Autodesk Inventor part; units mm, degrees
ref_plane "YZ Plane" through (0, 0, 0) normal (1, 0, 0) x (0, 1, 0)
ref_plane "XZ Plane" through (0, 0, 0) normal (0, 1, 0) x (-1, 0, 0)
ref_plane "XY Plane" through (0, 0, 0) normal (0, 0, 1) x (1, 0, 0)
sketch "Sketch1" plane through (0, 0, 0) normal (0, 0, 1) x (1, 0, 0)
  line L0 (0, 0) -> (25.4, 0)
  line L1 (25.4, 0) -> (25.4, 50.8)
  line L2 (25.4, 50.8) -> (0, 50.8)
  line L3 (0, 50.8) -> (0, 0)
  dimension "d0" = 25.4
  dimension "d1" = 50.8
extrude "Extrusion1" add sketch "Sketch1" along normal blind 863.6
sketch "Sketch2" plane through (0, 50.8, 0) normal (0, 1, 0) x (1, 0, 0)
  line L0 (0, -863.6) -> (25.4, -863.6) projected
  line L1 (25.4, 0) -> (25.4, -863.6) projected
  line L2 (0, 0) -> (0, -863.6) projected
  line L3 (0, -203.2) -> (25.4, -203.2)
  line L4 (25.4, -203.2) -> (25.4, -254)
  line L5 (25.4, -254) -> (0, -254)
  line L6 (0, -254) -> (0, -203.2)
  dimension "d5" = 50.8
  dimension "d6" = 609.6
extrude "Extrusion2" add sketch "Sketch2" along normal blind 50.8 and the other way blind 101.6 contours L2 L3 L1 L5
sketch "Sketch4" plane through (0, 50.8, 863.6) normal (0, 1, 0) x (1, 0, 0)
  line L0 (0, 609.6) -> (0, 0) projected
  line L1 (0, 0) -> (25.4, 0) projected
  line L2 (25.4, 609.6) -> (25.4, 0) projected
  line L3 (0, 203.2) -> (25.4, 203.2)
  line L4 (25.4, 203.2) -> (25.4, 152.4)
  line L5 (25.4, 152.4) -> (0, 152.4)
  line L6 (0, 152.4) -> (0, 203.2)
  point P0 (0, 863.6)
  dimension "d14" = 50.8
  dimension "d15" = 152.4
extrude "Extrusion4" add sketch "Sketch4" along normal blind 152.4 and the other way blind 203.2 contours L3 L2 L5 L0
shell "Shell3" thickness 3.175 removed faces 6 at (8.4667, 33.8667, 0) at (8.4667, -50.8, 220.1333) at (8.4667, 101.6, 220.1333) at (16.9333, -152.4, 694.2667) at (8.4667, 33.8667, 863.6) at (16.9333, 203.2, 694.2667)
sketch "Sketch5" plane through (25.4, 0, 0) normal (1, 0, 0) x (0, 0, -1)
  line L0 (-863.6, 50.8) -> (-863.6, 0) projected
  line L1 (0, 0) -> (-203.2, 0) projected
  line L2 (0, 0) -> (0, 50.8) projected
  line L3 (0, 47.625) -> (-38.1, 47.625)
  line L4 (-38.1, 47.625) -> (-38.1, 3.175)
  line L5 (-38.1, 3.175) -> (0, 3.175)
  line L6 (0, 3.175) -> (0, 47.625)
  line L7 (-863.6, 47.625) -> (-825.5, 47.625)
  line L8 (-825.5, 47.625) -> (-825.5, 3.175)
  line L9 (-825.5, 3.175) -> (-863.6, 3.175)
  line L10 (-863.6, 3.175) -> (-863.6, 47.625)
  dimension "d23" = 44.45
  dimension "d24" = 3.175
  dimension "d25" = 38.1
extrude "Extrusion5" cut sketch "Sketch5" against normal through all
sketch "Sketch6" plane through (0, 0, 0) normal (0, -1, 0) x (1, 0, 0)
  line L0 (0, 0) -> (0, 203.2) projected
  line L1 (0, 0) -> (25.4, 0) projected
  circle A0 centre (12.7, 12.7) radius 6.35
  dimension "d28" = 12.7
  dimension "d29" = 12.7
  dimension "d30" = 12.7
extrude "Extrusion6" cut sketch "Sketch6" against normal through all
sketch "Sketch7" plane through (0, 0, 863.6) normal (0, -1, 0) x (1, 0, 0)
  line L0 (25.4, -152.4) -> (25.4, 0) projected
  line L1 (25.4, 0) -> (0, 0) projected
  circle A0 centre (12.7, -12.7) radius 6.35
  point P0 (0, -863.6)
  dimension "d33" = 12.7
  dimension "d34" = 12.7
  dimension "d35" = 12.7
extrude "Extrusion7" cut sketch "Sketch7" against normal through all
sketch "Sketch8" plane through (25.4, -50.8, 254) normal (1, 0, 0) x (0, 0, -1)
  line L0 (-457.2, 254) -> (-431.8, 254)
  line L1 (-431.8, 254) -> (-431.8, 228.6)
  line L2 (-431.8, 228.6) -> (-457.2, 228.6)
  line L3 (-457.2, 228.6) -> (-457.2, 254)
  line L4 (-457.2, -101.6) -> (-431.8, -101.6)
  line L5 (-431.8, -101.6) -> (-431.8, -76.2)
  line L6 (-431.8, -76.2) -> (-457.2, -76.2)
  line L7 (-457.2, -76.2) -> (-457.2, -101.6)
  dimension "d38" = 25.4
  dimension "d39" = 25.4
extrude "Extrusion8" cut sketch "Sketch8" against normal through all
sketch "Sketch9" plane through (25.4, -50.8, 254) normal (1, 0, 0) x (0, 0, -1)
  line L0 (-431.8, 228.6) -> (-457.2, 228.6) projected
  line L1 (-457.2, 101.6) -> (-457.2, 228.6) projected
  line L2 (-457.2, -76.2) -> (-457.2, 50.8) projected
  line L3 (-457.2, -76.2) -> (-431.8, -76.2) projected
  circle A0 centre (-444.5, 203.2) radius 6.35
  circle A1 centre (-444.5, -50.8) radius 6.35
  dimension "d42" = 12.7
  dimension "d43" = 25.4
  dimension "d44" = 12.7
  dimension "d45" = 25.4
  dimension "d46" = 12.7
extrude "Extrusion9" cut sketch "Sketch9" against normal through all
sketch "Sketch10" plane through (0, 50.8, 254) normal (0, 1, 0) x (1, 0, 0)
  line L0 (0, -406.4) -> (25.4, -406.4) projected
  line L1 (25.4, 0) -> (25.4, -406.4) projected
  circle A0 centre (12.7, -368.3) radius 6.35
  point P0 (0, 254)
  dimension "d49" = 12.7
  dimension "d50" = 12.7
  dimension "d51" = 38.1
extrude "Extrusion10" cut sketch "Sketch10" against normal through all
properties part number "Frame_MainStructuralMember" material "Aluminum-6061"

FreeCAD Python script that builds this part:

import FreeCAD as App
import Part
import Sketcher
from FreeCAD import Vector
Q = App.Units.Quantity


def faces_at(feature, points):
    """Names of the faces that lie closest to the given points."""
    faces = feature.Shape.Faces
    near = lambda p: min(range(len(faces)), key=lambda i: faces[i].distToShape(Part.Vertex(*p))[0])
    return sorted({f"Face{near(p) + 1}" for p in points})

doc = App.newDocument("Part")
body = doc.addObject("PartDesign::Body", "Body")

# Sketch on XY plane
sketch1 = body.newObject("Sketcher::SketchObject", "Sketch")
sketch1.AttachmentSupport = (doc.getObject("XY_Plane"), [""])
sketch1.MapMode = "FlatFace"
sketch1.addGeometry(Part.LineSegment(Vector(0, 50.8, 0), Vector(0, 0, 0)), False)
sketch1.addGeometry(Part.LineSegment(Vector(0, 0, 0), Vector(25.4, 0, 0)), False)
sketch1.addGeometry(Part.LineSegment(Vector(25.4, 0, 0), Vector(25.4, 50.8, 0)), False)
sketch1.addGeometry(Part.LineSegment(Vector(25.4, 50.8, 0), Vector(0, 50.8, 0)), False)
sketch1.addConstraint(Sketcher.Constraint("Coincident", 0, 2, 1, 1))
sketch1.addConstraint(Sketcher.Constraint("Coincident", 1, 2, 2, 1))
sketch1.addConstraint(Sketcher.Constraint("Coincident", 2, 2, 3, 1))
sketch1.addConstraint(Sketcher.Constraint("Coincident", 3, 2, 0, 1))
sketch1.addConstraint(Sketcher.Constraint("Vertical", 0))
sketch1.addConstraint(Sketcher.Constraint("Horizontal", 1))
sketch1.addConstraint(Sketcher.Constraint("Vertical", 2))
sketch1.addConstraint(Sketcher.Constraint("Horizontal", 3))
sketch1.addConstraint(Sketcher.Constraint("Coincident", 0, 2, -1, 1))
sketch1.addConstraint(Sketcher.Constraint("DistanceX", 1, 1, 1, 2, Q("1 in")))
sketch1.addConstraint(Sketcher.Constraint("DistanceY", 0, 2, 0, 1, Q("2 in")))
pad1 = body.newObject("PartDesign::Pad", "Pad")
pad1.Profile = sketch1
pad1.Length = Q("34 in")

# Sketch on XZ plane
sketch2 = body.newObject("Sketcher::SketchObject", "Sketch001")
sketch2.AttachmentSupport = (doc.getObject("XZ_Plane"), [""])
sketch2.MapMode = "FlatFace"
sketch2.AttachmentOffset = App.Placement(Vector(0, 0, -2 * 25.4), App.Rotation())
sketch2.addGeometry(Part.LineSegment(Vector(0, 203.2, 0), Vector(0, 254, 0)), False)
sketch2.addGeometry(Part.LineSegment(Vector(0, 254, 0), Vector(25.4, 254, 0)), False)
sketch2.addGeometry(Part.LineSegment(Vector(25.4, 254, 0), Vector(25.4, 203.2, 0)), False)
sketch2.addGeometry(Part.LineSegment(Vector(25.4, 203.2, 0), Vector(0, 203.2, 0)), False)
sketch2.addConstraint(Sketcher.Constraint("Coincident", 0, 2, 1, 1))
sketch2.addConstraint(Sketcher.Constraint("Coincident", 1, 2, 2, 1))
sketch2.addConstraint(Sketcher.Constraint("Coincident", 2, 2, 3, 1))
sketch2.addConstraint(Sketcher.Constraint("Coincident", 3, 2, 0, 1))
sketch2.addConstraint(Sketcher.Constraint("Vertical", 0))
sketch2.addConstraint(Sketcher.Constraint("Horizontal", 1))
sketch2.addConstraint(Sketcher.Constraint("Vertical", 2))
sketch2.addConstraint(Sketcher.Constraint("Horizontal", 3))
sketch2.addConstraint(Sketcher.Constraint("PointOnObject", 0, 2, -2))
sketch2.addConstraint(Sketcher.Constraint("DistanceY", 0, 1, 0, 2, Q("2 in")))
sketch2.addConstraint(Sketcher.Constraint("DistanceX", 1, 1, 1, 2, Q("1 in")))
sketch2.addConstraint(Sketcher.Constraint("DistanceY", -1, 1, 0, 2, Q("10 in")))
pad2 = body.newObject("PartDesign::Pad", "Pad001")
pad2.Profile = sketch2
pad2.Type = "TwoLengths"
pad2.Length = Q("2 in")
pad2.Length2 = Q("4 in")
pad2.Reversed = True

# Sketch on XZ plane
sketch3 = body.newObject("Sketcher::SketchObject", "Sketch002")
sketch3.AttachmentSupport = (doc.getObject("XZ_Plane"), [""])
sketch3.MapMode = "FlatFace"
sketch3.AttachmentOffset = App.Placement(Vector(0, 0, -2 * 25.4), App.Rotation())
sketch3.addGeometry(Part.LineSegment(Vector(25.4, 660.4, 0), Vector(0, 660.4, 0)), False)
sketch3.addGeometry(Part.LineSegment(Vector(0, 660.4, 0), Vector(0, 711.2, 0)), False)
sketch3.addGeometry(Part.LineSegment(Vector(0, 711.2, 0), Vector(25.4, 711.2, 0)), False)
sketch3.addGeometry(Part.LineSegment(Vector(25.4, 711.2, 0), Vector(25.4, 660.4, 0)), False)
sketch3.addConstraint(Sketcher.Constraint("Coincident", 0, 2, 1, 1))
sketch3.addConstraint(Sketcher.Constraint("Coincident", 1, 2, 2, 1))
sketch3.addConstraint(Sketcher.Constraint("Coincident", 2, 2, 3, 1))
sketch3.addConstraint(Sketcher.Constraint("Coincident", 3, 2, 0, 1))
sketch3.addConstraint(Sketcher.Constraint("Horizontal", 0))
sketch3.addConstraint(Sketcher.Constraint("Vertical", 1))
sketch3.addConstraint(Sketcher.Constraint("Horizontal", 2))
sketch3.addConstraint(Sketcher.Constraint("Vertical", 3))
sketch3.addConstraint(Sketcher.Constraint("PointOnObject", 0, 2, -2))
sketch3.addConstraint(Sketcher.Constraint("DistanceY", 1, 1, 1, 2, Q("2 in")))
sketch3.addConstraint(Sketcher.Constraint("DistanceX", 0, 2, 0, 1, Q("1 in")))
sketch3.addConstraint(Sketcher.Constraint("DistanceY", -1, 1, 0, 2, Q("26 in")))
pad3 = body.newObject("PartDesign::Pad", "Pad002")
pad3.Profile = sketch3
pad3.Type = "TwoLengths"
pad3.Length = Q("6 in")
pad3.Length2 = Q("8 in")
pad3.Reversed = True
doc.recompute()

thickness = body.newObject("PartDesign::Thickness", "Thickness")
thickness.Base = (pad3, faces_at(pad3, [
    (8.467, 33.867, 0),
    (8.467, -50.8, 220.133),
    (8.467, 101.6, 220.133),
    (16.933, -152.4, 694.267),
    (8.467, 33.867, 863.6),
    (16.933, 203.2, 694.267),
]))
thickness.Value = Q("0.125 in")
thickness.Reversed = True
thickness.Join = "Intersection"

# Sketch on YZ plane
sketch4 = body.newObject("Sketcher::SketchObject", "Sketch003")
sketch4.AttachmentSupport = (doc.getObject("YZ_Plane"), [""])
sketch4.MapMode = "FlatFace"
sketch4.AttachmentOffset = App.Placement(Vector(0, 0, 1 * 25.4), App.Rotation())
sketch4.addGeometry(Part.LineSegment(Vector(47.625, 825.5, 0), Vector(47.625, 863.6, 0)), False)
sketch4.addGeometry(Part.LineSegment(Vector(47.625, 863.6, 0), Vector(3.175, 863.6, 0)), False)
sketch4.addGeometry(Part.LineSegment(Vector(3.175, 863.6, 0), Vector(3.175, 825.5, 0)), False)
sketch4.addGeometry(Part.LineSegment(Vector(3.175, 825.5, 0), Vector(47.625, 825.5, 0)), False)
sketch4.addGeometry(Part.LineSegment(Vector(3.175, 38.1, 0), Vector(3.175, 0, 0)), False)
sketch4.addGeometry(Part.LineSegment(Vector(3.175, 0, 0), Vector(47.625, 0, 0)), False)
sketch4.addGeometry(Part.LineSegment(Vector(47.625, 0, 0), Vector(47.625, 38.1, 0)), False)
sketch4.addGeometry(Part.LineSegment(Vector(47.625, 38.1, 0), Vector(3.175, 38.1, 0)), False)
sketch4.addConstraint(Sketcher.Constraint("Coincident", 0, 2, 1, 1))
sketch4.addConstraint(Sketcher.Constraint("Coincident", 1, 2, 2, 1))
sketch4.addConstraint(Sketcher.Constraint("Coincident", 2, 2, 3, 1))
sketch4.addConstraint(Sketcher.Constraint("Coincident", 3, 2, 0, 1))
sketch4.addConstraint(Sketcher.Constraint("Coincident", 4, 2, 5, 1))
sketch4.addConstraint(Sketcher.Constraint("Coincident", 5, 2, 6, 1))
sketch4.addConstraint(Sketcher.Constraint("Coincident", 6, 2, 7, 1))
sketch4.addConstraint(Sketcher.Constraint("Coincident", 7, 2, 4, 1))
sketch4.addConstraint(Sketcher.Constraint("Vertical", 0))
sketch4.addConstraint(Sketcher.Constraint("Horizontal", 1))
sketch4.addConstraint(Sketcher.Constraint("Vertical", 2))
sketch4.addConstraint(Sketcher.Constraint("Horizontal", 3))
sketch4.addConstraint(Sketcher.Constraint("Vertical", 4))
sketch4.addConstraint(Sketcher.Constraint("Horizontal", 5))
sketch4.addConstraint(Sketcher.Constraint("Vertical", 6))
sketch4.addConstraint(Sketcher.Constraint("Horizontal", 7))
sketch4.addConstraint(Sketcher.Constraint("PointOnObject", 4, 2, -1))
sketch4.addConstraint(Sketcher.Constraint("Vertical", 2, 2, 4, 2))
sketch4.addConstraint(Sketcher.Constraint("Vertical", 3, 2, 5, 2))
sketch4.addConstraint(Sketcher.Constraint("Equal", 2, 4))
sketch4.addConstraint(Sketcher.Constraint("DistanceY", 0, 1, 0, 2, Q("1.5 in")))
sketch4.addConstraint(Sketcher.Constraint("DistanceX", 1, 2, 1, 1, Q("1.75 in")))
sketch4.addConstraint(Sketcher.Constraint("DistanceX", -1, 1, 1, 2, Q("0.125 in")))
sketch4.addConstraint(Sketcher.Constraint("DistanceY", -1, 1, 0, 2, Q("34 in")))
pocket1 = body.newObject("PartDesign::Pocket", "Pocket")
pocket1.Profile = sketch4
pocket1.Type = "ThroughAll"

# Sketch on XZ plane
sketch5 = body.newObject("Sketcher::SketchObject", "Sketch004")
sketch5.AttachmentSupport = (doc.getObject("XZ_Plane"), [""])
sketch5.MapMode = "FlatFace"
sketch5.addGeometry(Part.Circle(Vector(12.7, 12.7, 0), Vector(0, 0, 1), 6.35), False)
sketch5.addConstraint(Sketcher.Constraint("Diameter", 0, Q("0.5 in")))
sketch5.addConstraint(Sketcher.Constraint("DistanceX", -1, 1, 0, 3, Q("0.5 in")))
sketch5.addConstraint(Sketcher.Constraint("DistanceY", -1, 1, 0, 3, Q("0.5 in")))
pocket2 = body.newObject("PartDesign::Pocket", "Pocket001")
pocket2.Profile = sketch5
pocket2.Type = "ThroughAll"

# Sketch on XZ plane
sketch6 = body.newObject("Sketcher::SketchObject", "Sketch005")
sketch6.AttachmentSupport = (doc.getObject("XZ_Plane"), [""])
sketch6.MapMode = "FlatFace"
sketch6.addGeometry(Part.Circle(Vector(12.7, 850.9, 0), Vector(0, 0, 1), 6.35), False)
sketch6.addConstraint(Sketcher.Constraint("Diameter", 0, Q("0.5 in")))
sketch6.addConstraint(Sketcher.Constraint("DistanceX", -1, 1, 0, 3, Q("0.5 in")))
sketch6.addConstraint(Sketcher.Constraint("DistanceY", -1, 1, 0, 3, Q("33.5 in")))
pocket3 = body.newObject("PartDesign::Pocket", "Pocket002")
pocket3.Profile = sketch6
pocket3.Type = "ThroughAll"

# Sketch on YZ plane
sketch7 = body.newObject("Sketcher::SketchObject", "Sketch006")
sketch7.AttachmentSupport = (doc.getObject("YZ_Plane"), [""])
sketch7.MapMode = "FlatFace"
sketch7.AttachmentOffset = App.Placement(Vector(0, 0, 1 * 25.4), App.Rotation())
sketch7.addGeometry(Part.LineSegment(Vector(203.2, 685.8, 0), Vector(203.2, 711.2, 0)), False)
sketch7.addGeometry(Part.LineSegment(Vector(203.2, 711.2, 0), Vector(177.8, 711.2, 0)), False)
sketch7.addGeometry(Part.LineSegment(Vector(177.8, 711.2, 0), Vector(177.8, 685.8, 0)), False)
sketch7.addGeometry(Part.LineSegment(Vector(177.8, 685.8, 0), Vector(203.2, 685.8, 0)), False)
sketch7.addGeometry(Part.LineSegment(Vector(-127, 711.2, 0), Vector(-152.4, 711.2, 0)), False)
sketch7.addGeometry(Part.LineSegment(Vector(-152.4, 711.2, 0), Vector(-152.4, 685.8, 0)), False)
sketch7.addGeometry(Part.LineSegment(Vector(-152.4, 685.8, 0), Vector(-127, 685.8, 0)), False)
sketch7.addGeometry(Part.LineSegment(Vector(-127, 685.8, 0), Vector(-127, 711.2, 0)), False)
sketch7.addConstraint(Sketcher.Constraint("Coincident", 0, 2, 1, 1))
sketch7.addConstraint(Sketcher.Constraint("Coincident", 1, 2, 2, 1))
sketch7.addConstraint(Sketcher.Constraint("Coincident", 2, 2, 3, 1))
sketch7.addConstraint(Sketcher.Constraint("Coincident", 3, 2, 0, 1))
sketch7.addConstraint(Sketcher.Constraint("Coincident", 4, 2, 5, 1))
sketch7.addConstraint(Sketcher.Constraint("Coincident", 5, 2, 6, 1))
sketch7.addConstraint(Sketcher.Constraint("Coincident", 6, 2, 7, 1))
sketch7.addConstraint(Sketcher.Constraint("Coincident", 7, 2, 4, 1))
sketch7.addConstraint(Sketcher.Constraint("Vertical", 0))
sketch7.addConstraint(Sketcher.Constraint("Horizontal", 1))
sketch7.addConstraint(Sketcher.Constraint("Vertical", 2))
sketch7.addConstraint(Sketcher.Constraint("Horizontal", 3))
sketch7.addConstraint(Sketcher.Constraint("Horizontal", 4))
sketch7.addConstraint(Sketcher.Constraint("Vertical", 5))
sketch7.addConstraint(Sketcher.Constraint("Horizontal", 6))
sketch7.addConstraint(Sketcher.Constraint("Vertical", 7))
sketch7.addConstraint(Sketcher.Constraint("Horizontal", 1, 2, 4, 2))
sketch7.addConstraint(Sketcher.Constraint("Horizontal", 3, 2, 5, 2))
sketch7.addConstraint(Sketcher.Constraint("Equal", 3, 4))
sketch7.addConstraint(Sketcher.Constraint("Equal", 6, 0))
sketch7.addConstraint(Sketcher.Constraint("DistanceX", 1, 2, 1, 1, Q("1 in")))
sketch7.addConstraint(Sketcher.Constraint("DistanceX", -1, 1, 0, 2, Q("8 in")))
sketch7.addConstraint(Sketcher.Constraint("DistanceY", -1, 1, 0, 2, Q("28 in")))
sketch7.addConstraint(Sketcher.Constraint("DistanceX", 4, 2, -1, 1, Q("6 in")))
pocket4 = body.newObject("PartDesign::Pocket", "Pocket003")
pocket4.Profile = sketch7
pocket4.Type = "ThroughAll"

# Sketch on YZ plane
sketch8 = body.newObject("Sketcher::SketchObject", "Sketch007")
sketch8.AttachmentSupport = (doc.getObject("YZ_Plane"), [""])
sketch8.MapMode = "FlatFace"
sketch8.AttachmentOffset = App.Placement(Vector(0, 0, 1 * 25.4), App.Rotation())
sketch8.addGeometry(Part.Circle(Vector(152.4, 698.5, 0), Vector(0, 0, 1), 6.35), False)
sketch8.addGeometry(Part.Circle(Vector(-101.6, 698.5, 0), Vector(0, 0, 1), 6.35), False)
sketch8.addConstraint(Sketcher.Constraint("Equal", 0, 1))
sketch8.addConstraint(Sketcher.Constraint("Horizontal", 0, 3, 1, 3))
sketch8.addConstraint(Sketcher.Constraint("Diameter", 0, Q("0.5 in")))
sketch8.addConstraint(Sketcher.Constraint("DistanceX", -1, 1, 0, 3, Q("6 in")))
sketch8.addConstraint(Sketcher.Constraint("DistanceX", 1, 3, -1, 1, Q("4 in")))
sketch8.addConstraint(Sketcher.Constraint("DistanceY", -1, 1, 0, 3, Q("27.5 in")))
pocket5 = body.newObject("PartDesign::Pocket", "Pocket004")
pocket5.Profile = sketch8
pocket5.Type = "ThroughAll"

# Sketch on XZ plane
sketch9 = body.newObject("Sketcher::SketchObject", "Sketch008")
sketch9.AttachmentSupport = (doc.getObject("XZ_Plane"), [""])
sketch9.MapMode = "FlatFace"
sketch9.AttachmentOffset = App.Placement(Vector(0, 0, -2 * 25.4), App.Rotation())
sketch9.addGeometry(Part.Circle(Vector(12.7, 622.3, 0), Vector(0, 0, 1), 6.35), False)
sketch9.addConstraint(Sketcher.Constraint("Diameter", 0, Q("0.5 in")))
sketch9.addConstraint(Sketcher.Constraint("DistanceX", -1, 1, 0, 3, Q("0.5 in")))
sketch9.addConstraint(Sketcher.Constraint("DistanceY", -1, 1, 0, 3, Q("24.5 in")))
pocket6 = body.newObject("PartDesign::Pocket", "Pocket005")
pocket6.Profile = sketch9
pocket6.Type = "ThroughAll"
pocket6.Reversed = True

doc.recompute()
